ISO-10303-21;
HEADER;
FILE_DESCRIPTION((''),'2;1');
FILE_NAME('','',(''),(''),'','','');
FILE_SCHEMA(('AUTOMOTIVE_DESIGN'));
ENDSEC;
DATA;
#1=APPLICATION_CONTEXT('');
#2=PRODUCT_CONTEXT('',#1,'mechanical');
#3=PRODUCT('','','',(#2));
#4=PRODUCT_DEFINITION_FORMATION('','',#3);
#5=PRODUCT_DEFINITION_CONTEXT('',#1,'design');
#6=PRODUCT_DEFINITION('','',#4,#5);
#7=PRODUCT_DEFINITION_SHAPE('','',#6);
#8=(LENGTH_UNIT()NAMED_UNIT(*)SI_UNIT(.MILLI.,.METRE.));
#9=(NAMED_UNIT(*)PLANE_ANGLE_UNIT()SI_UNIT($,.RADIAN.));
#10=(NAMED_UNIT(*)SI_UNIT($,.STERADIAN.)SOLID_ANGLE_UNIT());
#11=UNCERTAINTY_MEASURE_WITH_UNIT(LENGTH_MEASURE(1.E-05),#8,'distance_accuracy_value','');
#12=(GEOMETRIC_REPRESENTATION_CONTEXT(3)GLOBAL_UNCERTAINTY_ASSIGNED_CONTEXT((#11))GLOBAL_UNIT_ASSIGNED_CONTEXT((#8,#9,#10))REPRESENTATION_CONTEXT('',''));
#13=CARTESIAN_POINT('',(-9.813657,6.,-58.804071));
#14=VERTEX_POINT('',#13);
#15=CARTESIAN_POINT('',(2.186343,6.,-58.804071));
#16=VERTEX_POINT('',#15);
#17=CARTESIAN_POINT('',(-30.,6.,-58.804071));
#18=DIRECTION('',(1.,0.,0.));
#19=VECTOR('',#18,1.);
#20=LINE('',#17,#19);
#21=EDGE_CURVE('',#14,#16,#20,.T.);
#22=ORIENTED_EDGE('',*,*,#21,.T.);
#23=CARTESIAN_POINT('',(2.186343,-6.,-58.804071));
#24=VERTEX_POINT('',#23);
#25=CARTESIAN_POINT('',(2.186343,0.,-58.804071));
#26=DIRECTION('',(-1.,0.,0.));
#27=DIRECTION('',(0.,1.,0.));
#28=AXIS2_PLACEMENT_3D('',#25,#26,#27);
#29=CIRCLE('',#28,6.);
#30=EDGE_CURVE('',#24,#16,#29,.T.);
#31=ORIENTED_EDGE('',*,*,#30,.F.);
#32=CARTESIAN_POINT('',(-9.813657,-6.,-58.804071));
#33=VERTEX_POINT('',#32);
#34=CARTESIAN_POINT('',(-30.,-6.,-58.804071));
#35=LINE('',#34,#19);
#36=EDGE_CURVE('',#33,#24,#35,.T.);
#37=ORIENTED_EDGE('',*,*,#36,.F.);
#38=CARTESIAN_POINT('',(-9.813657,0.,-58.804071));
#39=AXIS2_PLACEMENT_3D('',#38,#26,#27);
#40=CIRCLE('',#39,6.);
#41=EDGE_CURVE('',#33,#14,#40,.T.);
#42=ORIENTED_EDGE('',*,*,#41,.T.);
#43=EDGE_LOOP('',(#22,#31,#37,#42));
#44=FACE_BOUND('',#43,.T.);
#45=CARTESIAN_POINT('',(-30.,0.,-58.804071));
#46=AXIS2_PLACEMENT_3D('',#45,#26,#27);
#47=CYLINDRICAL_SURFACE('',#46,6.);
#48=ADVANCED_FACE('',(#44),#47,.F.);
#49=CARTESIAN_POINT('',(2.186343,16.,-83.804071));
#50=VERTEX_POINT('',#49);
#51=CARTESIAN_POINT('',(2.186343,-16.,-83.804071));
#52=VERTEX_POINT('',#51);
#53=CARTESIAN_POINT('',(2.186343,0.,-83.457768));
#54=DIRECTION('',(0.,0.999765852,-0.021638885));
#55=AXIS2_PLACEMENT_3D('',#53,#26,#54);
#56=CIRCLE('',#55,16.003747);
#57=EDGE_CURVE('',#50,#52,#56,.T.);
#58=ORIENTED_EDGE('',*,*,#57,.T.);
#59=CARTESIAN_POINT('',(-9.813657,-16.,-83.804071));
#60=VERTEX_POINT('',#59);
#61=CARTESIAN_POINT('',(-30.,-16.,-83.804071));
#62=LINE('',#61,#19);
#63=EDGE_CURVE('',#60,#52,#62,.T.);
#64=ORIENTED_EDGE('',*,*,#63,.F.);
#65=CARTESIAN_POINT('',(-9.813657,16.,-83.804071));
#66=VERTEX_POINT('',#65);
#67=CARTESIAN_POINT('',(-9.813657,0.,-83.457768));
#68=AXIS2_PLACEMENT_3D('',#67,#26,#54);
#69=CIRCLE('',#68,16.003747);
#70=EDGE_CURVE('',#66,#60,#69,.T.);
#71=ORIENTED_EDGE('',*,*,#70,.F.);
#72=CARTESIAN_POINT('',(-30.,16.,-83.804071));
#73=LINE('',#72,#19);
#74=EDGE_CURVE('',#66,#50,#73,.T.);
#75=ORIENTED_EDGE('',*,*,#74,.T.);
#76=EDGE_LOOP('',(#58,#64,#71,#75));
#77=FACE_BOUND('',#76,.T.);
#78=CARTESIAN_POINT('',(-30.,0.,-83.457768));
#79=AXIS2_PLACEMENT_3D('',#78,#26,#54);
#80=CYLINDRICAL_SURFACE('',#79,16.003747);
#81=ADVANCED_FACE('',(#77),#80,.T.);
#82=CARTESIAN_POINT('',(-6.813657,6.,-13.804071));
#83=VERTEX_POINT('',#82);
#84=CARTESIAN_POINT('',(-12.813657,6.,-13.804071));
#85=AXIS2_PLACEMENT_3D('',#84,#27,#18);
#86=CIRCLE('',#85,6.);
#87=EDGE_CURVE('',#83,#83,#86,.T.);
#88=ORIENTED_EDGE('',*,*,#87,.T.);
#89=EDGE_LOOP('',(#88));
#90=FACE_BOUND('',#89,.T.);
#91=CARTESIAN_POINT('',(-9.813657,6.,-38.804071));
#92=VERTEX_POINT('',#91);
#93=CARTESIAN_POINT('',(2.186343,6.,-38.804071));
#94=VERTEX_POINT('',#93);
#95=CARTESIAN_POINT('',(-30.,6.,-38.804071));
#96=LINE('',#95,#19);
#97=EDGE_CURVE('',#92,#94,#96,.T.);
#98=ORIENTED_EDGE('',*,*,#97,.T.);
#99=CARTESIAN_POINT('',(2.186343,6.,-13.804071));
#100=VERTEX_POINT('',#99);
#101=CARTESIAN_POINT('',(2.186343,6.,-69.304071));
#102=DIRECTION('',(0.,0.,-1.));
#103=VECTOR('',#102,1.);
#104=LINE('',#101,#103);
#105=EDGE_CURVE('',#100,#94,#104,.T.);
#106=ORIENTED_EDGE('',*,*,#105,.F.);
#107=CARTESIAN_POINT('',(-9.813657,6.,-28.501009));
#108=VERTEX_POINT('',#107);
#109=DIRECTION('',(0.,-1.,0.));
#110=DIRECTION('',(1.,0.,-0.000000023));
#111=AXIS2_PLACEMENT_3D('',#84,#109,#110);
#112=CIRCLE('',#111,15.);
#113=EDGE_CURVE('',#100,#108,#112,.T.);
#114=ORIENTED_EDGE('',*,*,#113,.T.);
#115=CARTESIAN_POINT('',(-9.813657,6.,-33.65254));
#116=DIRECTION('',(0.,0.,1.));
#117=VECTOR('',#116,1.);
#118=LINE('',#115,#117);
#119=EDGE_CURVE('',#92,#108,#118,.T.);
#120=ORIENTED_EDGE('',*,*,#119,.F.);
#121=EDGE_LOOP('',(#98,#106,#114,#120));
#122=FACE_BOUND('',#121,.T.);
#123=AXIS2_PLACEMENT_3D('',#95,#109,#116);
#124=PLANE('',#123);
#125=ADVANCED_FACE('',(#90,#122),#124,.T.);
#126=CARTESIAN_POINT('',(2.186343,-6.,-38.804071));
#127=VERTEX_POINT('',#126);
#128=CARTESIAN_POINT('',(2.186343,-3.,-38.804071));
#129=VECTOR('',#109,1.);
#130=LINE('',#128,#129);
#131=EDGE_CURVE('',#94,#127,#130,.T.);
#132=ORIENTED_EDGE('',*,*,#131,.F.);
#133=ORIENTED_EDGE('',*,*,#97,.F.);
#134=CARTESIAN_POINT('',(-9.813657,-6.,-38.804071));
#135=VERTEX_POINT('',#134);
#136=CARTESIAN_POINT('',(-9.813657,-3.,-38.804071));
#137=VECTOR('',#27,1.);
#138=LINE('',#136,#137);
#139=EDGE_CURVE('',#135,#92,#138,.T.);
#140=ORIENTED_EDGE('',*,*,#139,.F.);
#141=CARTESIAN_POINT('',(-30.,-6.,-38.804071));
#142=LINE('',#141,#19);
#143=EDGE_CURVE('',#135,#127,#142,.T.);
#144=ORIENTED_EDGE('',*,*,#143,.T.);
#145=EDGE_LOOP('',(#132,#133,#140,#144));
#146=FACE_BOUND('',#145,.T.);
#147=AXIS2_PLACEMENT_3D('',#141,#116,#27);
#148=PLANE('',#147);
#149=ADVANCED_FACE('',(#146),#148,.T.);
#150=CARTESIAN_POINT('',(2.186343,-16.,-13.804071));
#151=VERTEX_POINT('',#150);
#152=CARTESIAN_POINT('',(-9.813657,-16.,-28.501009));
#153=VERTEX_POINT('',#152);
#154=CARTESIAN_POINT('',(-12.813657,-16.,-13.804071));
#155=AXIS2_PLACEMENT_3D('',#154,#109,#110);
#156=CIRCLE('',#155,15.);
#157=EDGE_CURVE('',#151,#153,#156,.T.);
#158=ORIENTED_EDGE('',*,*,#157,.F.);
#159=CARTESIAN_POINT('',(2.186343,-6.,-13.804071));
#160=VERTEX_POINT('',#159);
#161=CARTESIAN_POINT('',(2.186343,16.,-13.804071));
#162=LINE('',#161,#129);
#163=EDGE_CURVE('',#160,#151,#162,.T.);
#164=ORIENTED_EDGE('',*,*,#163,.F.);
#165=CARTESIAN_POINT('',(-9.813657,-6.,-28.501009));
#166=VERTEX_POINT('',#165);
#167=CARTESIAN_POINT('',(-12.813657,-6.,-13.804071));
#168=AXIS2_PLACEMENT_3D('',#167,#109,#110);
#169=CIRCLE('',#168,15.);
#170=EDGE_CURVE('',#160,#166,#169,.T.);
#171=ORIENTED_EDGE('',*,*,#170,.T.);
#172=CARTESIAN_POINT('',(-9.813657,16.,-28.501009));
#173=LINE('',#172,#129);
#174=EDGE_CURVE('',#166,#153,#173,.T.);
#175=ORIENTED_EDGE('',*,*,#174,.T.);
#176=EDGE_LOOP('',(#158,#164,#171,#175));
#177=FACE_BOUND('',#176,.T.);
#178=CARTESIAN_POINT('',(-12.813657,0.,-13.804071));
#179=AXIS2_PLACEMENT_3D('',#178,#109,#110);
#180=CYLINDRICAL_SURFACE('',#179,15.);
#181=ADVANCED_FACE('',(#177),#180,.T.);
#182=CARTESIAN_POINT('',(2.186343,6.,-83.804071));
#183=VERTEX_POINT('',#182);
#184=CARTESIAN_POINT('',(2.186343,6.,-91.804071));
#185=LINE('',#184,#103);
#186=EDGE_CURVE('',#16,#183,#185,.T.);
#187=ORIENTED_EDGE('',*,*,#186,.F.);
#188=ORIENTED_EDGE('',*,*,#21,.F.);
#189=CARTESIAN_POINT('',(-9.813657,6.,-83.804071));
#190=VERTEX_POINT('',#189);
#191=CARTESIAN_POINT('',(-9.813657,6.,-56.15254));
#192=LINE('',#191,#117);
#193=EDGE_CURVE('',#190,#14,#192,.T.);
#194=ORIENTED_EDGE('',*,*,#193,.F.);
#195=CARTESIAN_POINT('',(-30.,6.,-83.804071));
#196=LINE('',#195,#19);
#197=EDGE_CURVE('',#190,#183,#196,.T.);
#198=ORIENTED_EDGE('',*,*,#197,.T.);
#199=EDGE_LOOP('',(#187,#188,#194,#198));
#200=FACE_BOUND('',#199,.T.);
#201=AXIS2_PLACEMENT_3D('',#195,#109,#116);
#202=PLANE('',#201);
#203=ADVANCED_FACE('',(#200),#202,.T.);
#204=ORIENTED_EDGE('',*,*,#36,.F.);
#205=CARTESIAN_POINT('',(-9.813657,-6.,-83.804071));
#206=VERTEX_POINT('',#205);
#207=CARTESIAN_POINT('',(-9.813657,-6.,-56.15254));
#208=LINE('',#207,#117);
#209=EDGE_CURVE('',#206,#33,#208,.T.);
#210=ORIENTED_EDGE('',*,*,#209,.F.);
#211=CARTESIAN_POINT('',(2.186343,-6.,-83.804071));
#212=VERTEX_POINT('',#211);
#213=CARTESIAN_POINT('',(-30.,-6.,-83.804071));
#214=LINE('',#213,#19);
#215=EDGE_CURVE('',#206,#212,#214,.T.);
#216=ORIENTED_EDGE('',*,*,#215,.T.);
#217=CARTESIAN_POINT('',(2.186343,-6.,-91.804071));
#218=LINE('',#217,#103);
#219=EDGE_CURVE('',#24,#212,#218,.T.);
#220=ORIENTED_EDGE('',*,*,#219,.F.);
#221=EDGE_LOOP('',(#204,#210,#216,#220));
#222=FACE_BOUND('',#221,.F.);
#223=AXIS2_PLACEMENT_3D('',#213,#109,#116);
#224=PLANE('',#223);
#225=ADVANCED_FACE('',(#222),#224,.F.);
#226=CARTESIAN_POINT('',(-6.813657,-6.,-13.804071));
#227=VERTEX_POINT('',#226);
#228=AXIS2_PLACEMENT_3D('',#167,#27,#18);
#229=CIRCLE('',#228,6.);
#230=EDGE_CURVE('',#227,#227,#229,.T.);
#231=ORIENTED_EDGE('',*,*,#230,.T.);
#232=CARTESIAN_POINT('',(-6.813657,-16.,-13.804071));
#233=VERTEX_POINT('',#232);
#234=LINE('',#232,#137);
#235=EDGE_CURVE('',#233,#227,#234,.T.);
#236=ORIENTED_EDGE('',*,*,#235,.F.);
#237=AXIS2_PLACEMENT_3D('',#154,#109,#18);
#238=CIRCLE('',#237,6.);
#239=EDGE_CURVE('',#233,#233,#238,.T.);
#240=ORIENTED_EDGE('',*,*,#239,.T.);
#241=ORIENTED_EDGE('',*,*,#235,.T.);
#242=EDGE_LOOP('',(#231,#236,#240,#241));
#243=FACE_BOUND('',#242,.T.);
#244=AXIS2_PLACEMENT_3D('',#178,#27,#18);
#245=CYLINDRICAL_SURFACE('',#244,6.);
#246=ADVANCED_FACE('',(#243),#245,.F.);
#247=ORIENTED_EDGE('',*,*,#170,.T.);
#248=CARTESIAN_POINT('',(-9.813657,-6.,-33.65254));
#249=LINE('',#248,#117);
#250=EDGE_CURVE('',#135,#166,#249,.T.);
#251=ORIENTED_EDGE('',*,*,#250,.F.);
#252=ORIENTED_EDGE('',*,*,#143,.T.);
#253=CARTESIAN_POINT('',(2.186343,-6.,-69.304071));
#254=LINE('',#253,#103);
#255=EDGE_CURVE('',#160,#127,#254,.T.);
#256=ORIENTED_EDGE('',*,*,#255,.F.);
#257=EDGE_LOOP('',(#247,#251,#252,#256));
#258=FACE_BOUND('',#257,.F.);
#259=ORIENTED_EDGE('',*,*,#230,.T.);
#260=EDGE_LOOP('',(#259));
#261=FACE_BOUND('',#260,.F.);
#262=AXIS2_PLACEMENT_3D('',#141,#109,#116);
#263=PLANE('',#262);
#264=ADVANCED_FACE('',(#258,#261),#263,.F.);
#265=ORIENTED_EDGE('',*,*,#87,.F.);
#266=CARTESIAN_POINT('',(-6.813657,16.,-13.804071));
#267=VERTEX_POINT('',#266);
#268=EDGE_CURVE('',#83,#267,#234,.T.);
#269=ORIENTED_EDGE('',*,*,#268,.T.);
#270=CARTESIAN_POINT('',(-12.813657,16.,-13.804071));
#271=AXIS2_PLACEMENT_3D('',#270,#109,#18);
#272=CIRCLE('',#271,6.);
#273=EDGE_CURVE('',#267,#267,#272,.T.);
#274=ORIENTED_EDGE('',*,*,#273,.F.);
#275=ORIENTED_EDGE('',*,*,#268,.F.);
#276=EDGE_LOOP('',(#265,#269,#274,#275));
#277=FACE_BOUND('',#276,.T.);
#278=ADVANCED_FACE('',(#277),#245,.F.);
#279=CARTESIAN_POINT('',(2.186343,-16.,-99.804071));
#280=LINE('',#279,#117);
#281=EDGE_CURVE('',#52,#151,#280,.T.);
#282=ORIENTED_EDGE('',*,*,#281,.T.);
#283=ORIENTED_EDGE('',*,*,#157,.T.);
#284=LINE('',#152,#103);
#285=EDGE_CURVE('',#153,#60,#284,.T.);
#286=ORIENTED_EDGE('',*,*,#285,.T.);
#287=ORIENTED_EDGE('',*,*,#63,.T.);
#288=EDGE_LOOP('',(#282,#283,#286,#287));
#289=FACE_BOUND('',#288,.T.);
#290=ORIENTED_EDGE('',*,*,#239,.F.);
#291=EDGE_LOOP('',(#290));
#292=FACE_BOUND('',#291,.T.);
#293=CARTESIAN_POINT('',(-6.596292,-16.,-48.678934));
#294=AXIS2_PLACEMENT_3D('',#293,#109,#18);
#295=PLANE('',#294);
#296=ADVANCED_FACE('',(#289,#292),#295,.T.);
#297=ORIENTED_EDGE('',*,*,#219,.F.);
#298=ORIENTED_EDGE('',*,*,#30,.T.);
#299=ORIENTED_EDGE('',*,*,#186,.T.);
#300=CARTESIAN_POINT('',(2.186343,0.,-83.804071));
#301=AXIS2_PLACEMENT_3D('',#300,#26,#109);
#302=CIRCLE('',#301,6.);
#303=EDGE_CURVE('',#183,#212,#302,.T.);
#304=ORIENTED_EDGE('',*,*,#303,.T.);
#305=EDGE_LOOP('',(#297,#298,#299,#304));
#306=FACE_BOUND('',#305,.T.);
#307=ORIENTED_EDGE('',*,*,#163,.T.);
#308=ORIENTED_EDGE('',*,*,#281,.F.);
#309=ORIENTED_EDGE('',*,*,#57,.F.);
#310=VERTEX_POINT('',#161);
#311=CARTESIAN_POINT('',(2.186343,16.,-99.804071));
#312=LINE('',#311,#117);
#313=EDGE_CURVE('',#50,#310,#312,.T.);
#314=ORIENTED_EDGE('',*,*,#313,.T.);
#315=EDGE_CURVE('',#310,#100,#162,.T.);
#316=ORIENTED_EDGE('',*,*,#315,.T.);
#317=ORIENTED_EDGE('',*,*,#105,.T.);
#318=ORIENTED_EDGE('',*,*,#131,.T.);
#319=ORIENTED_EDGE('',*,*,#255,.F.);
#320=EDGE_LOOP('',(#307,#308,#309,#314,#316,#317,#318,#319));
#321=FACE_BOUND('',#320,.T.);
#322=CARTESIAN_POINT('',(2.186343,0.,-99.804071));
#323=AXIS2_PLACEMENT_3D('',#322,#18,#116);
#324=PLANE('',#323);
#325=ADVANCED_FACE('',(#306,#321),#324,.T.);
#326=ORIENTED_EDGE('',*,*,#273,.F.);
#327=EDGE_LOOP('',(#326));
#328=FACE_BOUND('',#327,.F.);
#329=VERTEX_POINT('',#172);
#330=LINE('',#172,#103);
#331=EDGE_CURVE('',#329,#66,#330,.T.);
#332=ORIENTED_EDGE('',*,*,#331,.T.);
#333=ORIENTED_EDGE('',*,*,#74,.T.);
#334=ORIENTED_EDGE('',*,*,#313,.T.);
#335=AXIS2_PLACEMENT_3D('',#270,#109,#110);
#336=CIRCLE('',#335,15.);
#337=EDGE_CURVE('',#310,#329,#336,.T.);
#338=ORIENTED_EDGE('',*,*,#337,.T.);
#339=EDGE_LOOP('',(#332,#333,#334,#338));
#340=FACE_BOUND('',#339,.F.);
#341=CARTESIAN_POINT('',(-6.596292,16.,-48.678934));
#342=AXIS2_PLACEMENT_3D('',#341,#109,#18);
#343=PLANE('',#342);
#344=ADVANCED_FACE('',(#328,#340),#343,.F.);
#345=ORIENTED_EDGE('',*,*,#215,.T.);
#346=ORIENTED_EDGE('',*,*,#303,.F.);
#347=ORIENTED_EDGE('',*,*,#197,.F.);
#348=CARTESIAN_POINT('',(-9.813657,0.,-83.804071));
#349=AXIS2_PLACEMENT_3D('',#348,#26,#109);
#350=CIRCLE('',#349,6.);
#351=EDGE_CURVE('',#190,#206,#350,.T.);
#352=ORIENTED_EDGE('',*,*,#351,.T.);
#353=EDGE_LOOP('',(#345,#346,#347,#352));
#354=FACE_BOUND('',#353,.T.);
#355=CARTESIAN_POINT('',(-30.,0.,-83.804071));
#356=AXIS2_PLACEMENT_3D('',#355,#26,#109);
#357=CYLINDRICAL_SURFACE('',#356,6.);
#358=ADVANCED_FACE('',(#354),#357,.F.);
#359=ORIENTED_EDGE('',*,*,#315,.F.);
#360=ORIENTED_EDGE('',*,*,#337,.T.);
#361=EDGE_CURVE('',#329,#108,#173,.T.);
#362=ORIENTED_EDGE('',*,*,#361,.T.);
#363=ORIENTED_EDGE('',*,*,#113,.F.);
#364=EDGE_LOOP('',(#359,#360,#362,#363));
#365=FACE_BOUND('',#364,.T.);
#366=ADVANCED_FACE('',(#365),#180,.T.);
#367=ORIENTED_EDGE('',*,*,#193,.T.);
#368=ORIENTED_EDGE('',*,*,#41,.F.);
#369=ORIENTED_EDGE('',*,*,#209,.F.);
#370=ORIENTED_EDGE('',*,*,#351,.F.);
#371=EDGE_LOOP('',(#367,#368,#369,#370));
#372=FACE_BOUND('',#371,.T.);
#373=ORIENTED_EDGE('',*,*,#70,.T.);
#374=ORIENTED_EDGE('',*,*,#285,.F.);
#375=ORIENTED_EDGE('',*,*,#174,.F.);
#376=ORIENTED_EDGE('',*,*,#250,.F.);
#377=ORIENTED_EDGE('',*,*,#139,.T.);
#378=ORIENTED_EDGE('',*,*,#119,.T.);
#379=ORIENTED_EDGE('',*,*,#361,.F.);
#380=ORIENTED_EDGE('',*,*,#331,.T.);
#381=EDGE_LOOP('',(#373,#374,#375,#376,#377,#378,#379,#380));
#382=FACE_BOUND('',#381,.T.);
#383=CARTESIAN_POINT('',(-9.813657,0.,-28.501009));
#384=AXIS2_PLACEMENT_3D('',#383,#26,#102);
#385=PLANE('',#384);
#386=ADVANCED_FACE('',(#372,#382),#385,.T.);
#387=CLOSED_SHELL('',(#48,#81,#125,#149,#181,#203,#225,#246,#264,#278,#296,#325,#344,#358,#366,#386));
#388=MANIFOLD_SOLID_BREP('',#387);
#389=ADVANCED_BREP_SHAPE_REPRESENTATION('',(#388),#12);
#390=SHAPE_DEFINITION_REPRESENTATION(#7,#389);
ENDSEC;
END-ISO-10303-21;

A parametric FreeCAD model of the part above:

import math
import FreeCAD as App
import Part
import Sketcher
from FreeCAD import Vector
Q = App.Units.Quantity


def add_polygon(sketch, points):
    """Adds a closed chain of lines whose ends are joined by coincident constraints."""
    first, n = sketch.GeometryCount, len(points)
    for a, b in zip(points, points[1:] + points[:1]):
        sketch.addGeometry(Part.LineSegment(App.Vector(*a, 0), App.Vector(*b, 0)), False)
    for i in range(n):
        sketch.addConstraint(Sketcher.Constraint("Coincident", first + i, 2, first + (i + 1) % n, 1))

doc = App.newDocument("Part")
body = doc.addObject("PartDesign::Body", "Body")

# Sketch on XZ plane
sketch1 = body.newObject("Sketcher::SketchObject", "Sketch")
sketch1.AttachmentSupport = (doc.getObject("XZ_Plane"), [""])
sketch1.MapMode = "FlatFace"
sketch1.addGeometry(Part.LineSegment(Vector(2, -100, 0), Vector(2, -14, 0)), False)
sketch1.addGeometry(Part.ArcOfCircle(Part.Circle(Vector(-13, -14, 0), Vector(0, 0, 1), 15), math.radians(0), math.radians(282)), False)
sketch1.addGeometry(Part.LineSegment(Vector(-10, -29, 0), Vector(-10, -100, 0)), False)
sketch1.addGeometry(Part.LineSegment(Vector(-10, -100, 0), Vector(2, -100, 0)), False)
sketch1.addGeometry(Part.Circle(Vector(-13, -14, 0), Vector(0, 0, 1), 6), False)
sketch1.addConstraint(Sketcher.Constraint("Tangent", 0, 2, 1, 1))
sketch1.addConstraint(Sketcher.Constraint("Coincident", 1, 2, 2, 1))
sketch1.addConstraint(Sketcher.Constraint("Coincident", 2, 2, 3, 1))
sketch1.addConstraint(Sketcher.Constraint("Coincident", 3, 2, 0, 1))
sketch1.addConstraint(Sketcher.Constraint("Vertical", 0))
sketch1.addConstraint(Sketcher.Constraint("Vertical", 2))
sketch1.addConstraint(Sketcher.Constraint("Horizontal", 3))
sketch1.addConstraint(Sketcher.Constraint("Coincident", 4, 3, 1, 3))
sketch1.addConstraint(Sketcher.Constraint("Diameter", 4, Q("12 mm")))
sketch1.addConstraint(Sketcher.Constraint("Radius", 1, Q("15 mm")))
sketch1.addConstraint(Sketcher.Constraint("DistanceX", 3, 1, 3, 2, Q("12 mm")))
sketch1.addConstraint(Sketcher.Constraint("DistanceY", 0, 1, 0, 2, Q("86 mm")))
sketch1.addConstraint(Sketcher.Constraint("DistanceY", 1, 3, -1, 1, Q("13.804071 mm")))
sketch1.addConstraint(Sketcher.Constraint("DistanceX", 1, 3, -1, 1, Q("12.813657 mm")))
pad1 = body.newObject("PartDesign::Pad", "Pad")
pad1.Profile = sketch1
pad1.Length = 32
pad1.Midplane = True

# Sketch on YZ plane
sketch2 = body.newObject("Sketcher::SketchObject", "Sketch001")
sketch2.AttachmentSupport = (doc.getObject("YZ_Plane"), [""])
sketch2.MapMode = "FlatFace"
sketch2.AttachmentOffset = App.Placement(Vector(0, 0, -30), App.Rotation())
sketch2.addGeometry(Part.ArcOfCircle(Part.Circle(Vector(0, -83, 0), Vector(0, 0, 1), 16), math.radians(-179), math.radians(-1)), False)  # 0
sketch2.addGeometry(Part.LineSegment(Vector(-16, -84, 0), Vector(-16, -100, 0)), False)  # 1
sketch2.addGeometry(Part.LineSegment(Vector(-16, -100, 0), Vector(16, -100, 0)), False)  # 2
sketch2.addGeometry(Part.LineSegment(Vector(16, -100, 0), Vector(16, -84, 0)), False)  # 3
sketch2.addGeometry(Part.LineSegment(Vector(-6, -59, 0), Vector(-6, -84, 0)), False)  # 4
sketch2.addGeometry(Part.ArcOfCircle(Part.Circle(Vector(0, -84, 0), Vector(0, 0, 1), 6), math.radians(180), math.radians(360)), False)  # 5
sketch2.addGeometry(Part.LineSegment(Vector(6, -84, 0), Vector(6, -59, 0)), False)  # 6
sketch2.addGeometry(Part.ArcOfCircle(Part.Circle(Vector(0, -59, 0), Vector(0, 0, 1), 6), math.radians(0), math.radians(180)), False)  # 7
add_polygon(sketch2, [(-6, 1), (-6, -39), (6, -39), (6, 1)])  # lines 8-11
sketch2.addConstraint(Sketcher.Constraint("Coincident", 0, 1, 1, 1))
sketch2.addConstraint(Sketcher.Constraint("Coincident", 1, 2, 2, 1))
sketch2.addConstraint(Sketcher.Constraint("Coincident", 2, 2, 3, 1))
sketch2.addConstraint(Sketcher.Constraint("Coincident", 3, 2, 0, 2))
sketch2.addConstraint(Sketcher.Constraint("Tangent", 4, 2, 5, 1))
sketch2.addConstraint(Sketcher.Constraint("Tangent", 5, 2, 6, 1))
sketch2.addConstraint(Sketcher.Constraint("Tangent", 6, 2, 7, 1))
sketch2.addConstraint(Sketcher.Constraint("Tangent", 7, 2, 4, 1))
sketch2.addConstraint(Sketcher.Constraint("Vertical", 1))
sketch2.addConstraint(Sketcher.Constraint("Horizontal", 2))
sketch2.addConstraint(Sketcher.Constraint("Vertical", 3))
sketch2.addConstraint(Sketcher.Constraint("Vertical", 4))
sketch2.addConstraint(Sketcher.Constraint("Vertical", 6))
sketch2.addConstraint(Sketcher.Constraint("Vertical", 8))
sketch2.addConstraint(Sketcher.Constraint("Horizontal", 9))
sketch2.addConstraint(Sketcher.Constraint("Vertical", 10))
sketch2.addConstraint(Sketcher.Constraint("Horizontal", 11))
sketch2.addConstraint(Sketcher.Constraint("Symmetric", 0, 1, 3, 2, -2))
sketch2.addConstraint(Sketcher.Constraint("PointOnObject", 5, 3, -2))
sketch2.addConstraint(Sketcher.Constraint("Horizontal", 5, 3, 0, 1))
sketch2.addConstraint(Sketcher.Constraint("Vertical", 7, 2, 8, 2))
sketch2.addConstraint(Sketcher.Constraint("Vertical", 6, 2, 9, 2))
sketch2.addConstraint(Sketcher.Constraint("Radius", 5, Q("6 mm")))
sketch2.addConstraint(Sketcher.Constraint("DistanceX", 2, 1, 2, 2, Q("32 mm")))
sketch2.addConstraint(Sketcher.Constraint("DistanceY", 1, 2, 1, 1, Q("16 mm")))
sketch2.addConstraint(Sketcher.Constraint("DistanceY", 4, 2, 4, 1, Q("25 mm")))
sketch2.addConstraint(Sketcher.Constraint("DistanceY", 8, 2, 8, 1, Q("40 mm")))
sketch2.addConstraint(Sketcher.Constraint("DistanceY", 7, 2, 8, 2, Q("20 mm")))
sketch2.addConstraint(Sketcher.Constraint("Radius", 0, Q("16.003747 mm")))
sketch2.addConstraint(Sketcher.Constraint("DistanceY", 5, 3, -1, 1, Q("83.804071 mm")))
pocket1 = body.newObject("PartDesign::Pocket", "Pocket")
pocket1.Profile = sketch2
pocket1.Type = "ThroughAll"
pocket1.Reversed = True

doc.recompute()
